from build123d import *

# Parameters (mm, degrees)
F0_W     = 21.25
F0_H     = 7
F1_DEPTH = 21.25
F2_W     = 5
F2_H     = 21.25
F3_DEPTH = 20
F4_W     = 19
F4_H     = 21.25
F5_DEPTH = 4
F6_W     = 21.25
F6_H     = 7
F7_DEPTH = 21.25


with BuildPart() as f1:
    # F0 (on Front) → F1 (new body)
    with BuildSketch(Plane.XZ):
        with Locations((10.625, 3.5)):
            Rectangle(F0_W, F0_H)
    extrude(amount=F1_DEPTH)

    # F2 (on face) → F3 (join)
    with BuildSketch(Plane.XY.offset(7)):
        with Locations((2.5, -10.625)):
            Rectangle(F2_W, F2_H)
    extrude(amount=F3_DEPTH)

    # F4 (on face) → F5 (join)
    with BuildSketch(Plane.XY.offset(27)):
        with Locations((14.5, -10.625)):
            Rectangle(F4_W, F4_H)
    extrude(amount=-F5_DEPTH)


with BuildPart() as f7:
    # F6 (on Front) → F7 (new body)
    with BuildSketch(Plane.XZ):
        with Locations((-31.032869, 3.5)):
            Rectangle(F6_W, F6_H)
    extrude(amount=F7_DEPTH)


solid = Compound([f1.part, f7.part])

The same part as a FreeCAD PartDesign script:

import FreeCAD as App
import Part
import Sketcher

doc = App.newDocument("Part")
body = doc.addObject("PartDesign::Body", "Body")

sketch1 = body.newObject("Sketcher::SketchObject", "Sketch")
sketch1.AttachmentSupport = (doc.getObject("XZ_Plane"), [""])
sketch1.MapMode = "FlatFace"
sketch1.addGeometry(Part.LineSegment(App.Vector(0, 7, 0), App.Vector(0, 0, 0)), False)
sketch1.addGeometry(Part.LineSegment(App.Vector(0, 0, 0), App.Vector(21, 0, 0)), False)
sketch1.addGeometry(Part.LineSegment(App.Vector(21, 0, 0), App.Vector(21, 7, 0)), False)
sketch1.addGeometry(Part.LineSegment(App.Vector(21, 7, 0), App.Vector(0, 7, 0)), False)
sketch1.addConstraint(Sketcher.Constraint("Coincident", 0, 2, 1, 1))
sketch1.addConstraint(Sketcher.Constraint("Coincident", 1, 2, 2, 1))
sketch1.addConstraint(Sketcher.Constraint("Coincident", 2, 2, 3, 1))
sketch1.addConstraint(Sketcher.Constraint("Coincident", 3, 2, 0, 1))
sketch1.addConstraint(Sketcher.Constraint("Vertical", 0))
sketch1.addConstraint(Sketcher.Constraint("Horizontal", 1))
sketch1.addConstraint(Sketcher.Constraint("Vertical", 2))
sketch1.addConstraint(Sketcher.Constraint("Horizontal", 3))
sketch1.addConstraint(Sketcher.Constraint("Coincident", 0, 2, -1, 1))
sketch1.addConstraint(Sketcher.Constraint("DistanceY", 0, 2, 0, 1, 7.0))
sketch1.addConstraint(Sketcher.Constraint("DistanceX", 1, 1, 1, 2, 21.25))
pad1 = body.newObject("PartDesign::Pad", "Pad")
pad1.Profile = sketch1
pad1.Length = 21.25

sketch2 = body.newObject("Sketcher::SketchObject", "Sketch001")
sketch2.AttachmentSupport = (doc.getObject("XY_Plane"), [""])
sketch2.MapMode = "FlatFace"
sketch2.AttachmentOffset = App.Placement(App.Vector(0, 0, 7), App.Rotation())
sketch2.addGeometry(Part.LineSegment(App.Vector(0, 0, 0), App.Vector(0, -21, 0)), False)
sketch2.addGeometry(Part.LineSegment(App.Vector(0, -21, 0), App.Vector(5, -21, 0)), False)
sketch2.addGeometry(Part.LineSegment(App.Vector(5, -21, 0), App.Vector(5, 0, 0)), False)
sketch2.addGeometry(Part.LineSegment(App.Vector(5, 0, 0), App.Vector(0, 0, 0)), False)
sketch2.addConstraint(Sketcher.Constraint("Coincident", 0, 2, 1, 1))
sketch2.addConstraint(Sketcher.Constraint("Coincident", 1, 2, 2, 1))
sketch2.addConstraint(Sketcher.Constraint("Coincident", 2, 2, 3, 1))
sketch2.addConstraint(Sketcher.Constraint("Coincident", 3, 2, 0, 1))
sketch2.addConstraint(Sketcher.Constraint("Vertical", 0))
sketch2.addConstraint(Sketcher.Constraint("Horizontal", 1))
sketch2.addConstraint(Sketcher.Constraint("Vertical", 2))
sketch2.addConstraint(Sketcher.Constraint("Horizontal", 3))
sketch2.addConstraint(Sketcher.Constraint("Coincident", 3, 2, -1, 1))
sketch2.addConstraint(Sketcher.Constraint("DistanceX", 1, 1, 1, 2, 5.0))
sketch2.addConstraint(Sketcher.Constraint("DistanceY", 0, 2, 0, 1, 21.25))
pad2 = body.newObject("PartDesign::Pad", "Pad001")
pad2.Profile = sketch2
pad2.Length = 20

sketch3 = body.newObject("Sketcher::SketchObject", "Sketch002")
sketch3.AttachmentSupport = (doc.getObject("XY_Plane"), [""])
sketch3.MapMode = "FlatFace"
sketch3.AttachmentOffset = App.Placement(App.Vector(0, 0, 27), App.Rotation())
sketch3.addGeometry(Part.LineSegment(App.Vector(5, 0, 0), App.Vector(5, -21, 0)), False)
sketch3.addGeometry(Part.LineSegment(App.Vector(5, -21, 0), App.Vector(24, -21, 0)), False)
sketch3.addGeometry(Part.LineSegment(App.Vector(24, -21, 0), App.Vector(24, 0, 0)), False)
sketch3.addGeometry(Part.LineSegment(App.Vector(24, 0, 0), App.Vector(5, 0, 0)), False)
sketch3.addConstraint(Sketcher.Constraint("Coincident", 0, 2, 1, 1))
sketch3.addConstraint(Sketcher.Constraint("Coincident", 1, 2, 2, 1))
sketch3.addConstraint(Sketcher.Constraint("Coincident", 2, 2, 3, 1))
sketch3.addConstraint(Sketcher.Constraint("Coincident", 3, 2, 0, 1))
sketch3.addConstraint(Sketcher.Constraint("Vertical", 0))
sketch3.addConstraint(Sketcher.Constraint("Horizontal", 1))
sketch3.addConstraint(Sketcher.Constraint("Vertical", 2))
sketch3.addConstraint(Sketcher.Constraint("Horizontal", 3))
sketch3.addConstraint(Sketcher.Constraint("PointOnObject", 2, 2, -1))
sketch3.addConstraint(Sketcher.Constraint("DistanceX", 1, 1, 1, 2, 19.0))
sketch3.addConstraint(Sketcher.Constraint("DistanceX", -1, 1, 0, 2, 5.0))
sketch3.addConstraint(Sketcher.Constraint("DistanceY", 0, 2, 0, 1, 21.25))
pad3 = body.newObject("PartDesign::Pad", "Pad002")
pad3.Profile = sketch3
pad3.Length = 4
pad3.Reversed = True
body2 = doc.addObject("PartDesign::Body", "Body001")

sketch4 = body2.newObject("Sketcher::SketchObject", "Sketch003")
sketch4.AttachmentSupport = (doc.getObject("XZ_Plane001"), [""])
sketch4.MapMode = "FlatFace"
sketch4.addGeometry(Part.LineSegment(App.Vector(-42, 7, 0), App.Vector(-42, 0, 0)), False)
sketch4.addGeometry(Part.LineSegment(App.Vector(-42, 0, 0), App.Vector(-20, 0, 0)), False)
sketch4.addGeometry(Part.LineSegment(App.Vector(-20, 0, 0), App.Vector(-20, 7, 0)), False)
sketch4.addGeometry(Part.LineSegment(App.Vector(-20, 7, 0), App.Vector(-42, 7, 0)), False)
sketch4.addConstraint(Sketcher.Constraint("Coincident", 0, 2, 1, 1))
sketch4.addConstraint(Sketcher.Constraint("Coincident", 1, 2, 2, 1))
sketch4.addConstraint(Sketcher.Constraint("Coincident", 2, 2, 3, 1))
sketch4.addConstraint(Sketcher.Constraint("Coincident", 3, 2, 0, 1))
sketch4.addConstraint(Sketcher.Constraint("Vertical", 0))
sketch4.addConstraint(Sketcher.Constraint("Horizontal", 1))
sketch4.addConstraint(Sketcher.Constraint("Vertical", 2))
sketch4.addConstraint(Sketcher.Constraint("Horizontal", 3))
sketch4.addConstraint(Sketcher.Constraint("PointOnObject", 0, 2, -1))
sketch4.addConstraint(Sketcher.Constraint("DistanceY", 0, 2, 0, 1, 7.0))
sketch4.addConstraint(Sketcher.Constraint("DistanceX", 1, 1, 1, 2, 21.25))
sketch4.addConstraint(Sketcher.Constraint("DistanceX", 0, 2, -1, 1, 41.657869))
pad4 = body2.newObject("PartDesign::Pad", "Pad003")
pad4.Profile = sketch4
pad4.Length = 21.25

doc.recompute()
